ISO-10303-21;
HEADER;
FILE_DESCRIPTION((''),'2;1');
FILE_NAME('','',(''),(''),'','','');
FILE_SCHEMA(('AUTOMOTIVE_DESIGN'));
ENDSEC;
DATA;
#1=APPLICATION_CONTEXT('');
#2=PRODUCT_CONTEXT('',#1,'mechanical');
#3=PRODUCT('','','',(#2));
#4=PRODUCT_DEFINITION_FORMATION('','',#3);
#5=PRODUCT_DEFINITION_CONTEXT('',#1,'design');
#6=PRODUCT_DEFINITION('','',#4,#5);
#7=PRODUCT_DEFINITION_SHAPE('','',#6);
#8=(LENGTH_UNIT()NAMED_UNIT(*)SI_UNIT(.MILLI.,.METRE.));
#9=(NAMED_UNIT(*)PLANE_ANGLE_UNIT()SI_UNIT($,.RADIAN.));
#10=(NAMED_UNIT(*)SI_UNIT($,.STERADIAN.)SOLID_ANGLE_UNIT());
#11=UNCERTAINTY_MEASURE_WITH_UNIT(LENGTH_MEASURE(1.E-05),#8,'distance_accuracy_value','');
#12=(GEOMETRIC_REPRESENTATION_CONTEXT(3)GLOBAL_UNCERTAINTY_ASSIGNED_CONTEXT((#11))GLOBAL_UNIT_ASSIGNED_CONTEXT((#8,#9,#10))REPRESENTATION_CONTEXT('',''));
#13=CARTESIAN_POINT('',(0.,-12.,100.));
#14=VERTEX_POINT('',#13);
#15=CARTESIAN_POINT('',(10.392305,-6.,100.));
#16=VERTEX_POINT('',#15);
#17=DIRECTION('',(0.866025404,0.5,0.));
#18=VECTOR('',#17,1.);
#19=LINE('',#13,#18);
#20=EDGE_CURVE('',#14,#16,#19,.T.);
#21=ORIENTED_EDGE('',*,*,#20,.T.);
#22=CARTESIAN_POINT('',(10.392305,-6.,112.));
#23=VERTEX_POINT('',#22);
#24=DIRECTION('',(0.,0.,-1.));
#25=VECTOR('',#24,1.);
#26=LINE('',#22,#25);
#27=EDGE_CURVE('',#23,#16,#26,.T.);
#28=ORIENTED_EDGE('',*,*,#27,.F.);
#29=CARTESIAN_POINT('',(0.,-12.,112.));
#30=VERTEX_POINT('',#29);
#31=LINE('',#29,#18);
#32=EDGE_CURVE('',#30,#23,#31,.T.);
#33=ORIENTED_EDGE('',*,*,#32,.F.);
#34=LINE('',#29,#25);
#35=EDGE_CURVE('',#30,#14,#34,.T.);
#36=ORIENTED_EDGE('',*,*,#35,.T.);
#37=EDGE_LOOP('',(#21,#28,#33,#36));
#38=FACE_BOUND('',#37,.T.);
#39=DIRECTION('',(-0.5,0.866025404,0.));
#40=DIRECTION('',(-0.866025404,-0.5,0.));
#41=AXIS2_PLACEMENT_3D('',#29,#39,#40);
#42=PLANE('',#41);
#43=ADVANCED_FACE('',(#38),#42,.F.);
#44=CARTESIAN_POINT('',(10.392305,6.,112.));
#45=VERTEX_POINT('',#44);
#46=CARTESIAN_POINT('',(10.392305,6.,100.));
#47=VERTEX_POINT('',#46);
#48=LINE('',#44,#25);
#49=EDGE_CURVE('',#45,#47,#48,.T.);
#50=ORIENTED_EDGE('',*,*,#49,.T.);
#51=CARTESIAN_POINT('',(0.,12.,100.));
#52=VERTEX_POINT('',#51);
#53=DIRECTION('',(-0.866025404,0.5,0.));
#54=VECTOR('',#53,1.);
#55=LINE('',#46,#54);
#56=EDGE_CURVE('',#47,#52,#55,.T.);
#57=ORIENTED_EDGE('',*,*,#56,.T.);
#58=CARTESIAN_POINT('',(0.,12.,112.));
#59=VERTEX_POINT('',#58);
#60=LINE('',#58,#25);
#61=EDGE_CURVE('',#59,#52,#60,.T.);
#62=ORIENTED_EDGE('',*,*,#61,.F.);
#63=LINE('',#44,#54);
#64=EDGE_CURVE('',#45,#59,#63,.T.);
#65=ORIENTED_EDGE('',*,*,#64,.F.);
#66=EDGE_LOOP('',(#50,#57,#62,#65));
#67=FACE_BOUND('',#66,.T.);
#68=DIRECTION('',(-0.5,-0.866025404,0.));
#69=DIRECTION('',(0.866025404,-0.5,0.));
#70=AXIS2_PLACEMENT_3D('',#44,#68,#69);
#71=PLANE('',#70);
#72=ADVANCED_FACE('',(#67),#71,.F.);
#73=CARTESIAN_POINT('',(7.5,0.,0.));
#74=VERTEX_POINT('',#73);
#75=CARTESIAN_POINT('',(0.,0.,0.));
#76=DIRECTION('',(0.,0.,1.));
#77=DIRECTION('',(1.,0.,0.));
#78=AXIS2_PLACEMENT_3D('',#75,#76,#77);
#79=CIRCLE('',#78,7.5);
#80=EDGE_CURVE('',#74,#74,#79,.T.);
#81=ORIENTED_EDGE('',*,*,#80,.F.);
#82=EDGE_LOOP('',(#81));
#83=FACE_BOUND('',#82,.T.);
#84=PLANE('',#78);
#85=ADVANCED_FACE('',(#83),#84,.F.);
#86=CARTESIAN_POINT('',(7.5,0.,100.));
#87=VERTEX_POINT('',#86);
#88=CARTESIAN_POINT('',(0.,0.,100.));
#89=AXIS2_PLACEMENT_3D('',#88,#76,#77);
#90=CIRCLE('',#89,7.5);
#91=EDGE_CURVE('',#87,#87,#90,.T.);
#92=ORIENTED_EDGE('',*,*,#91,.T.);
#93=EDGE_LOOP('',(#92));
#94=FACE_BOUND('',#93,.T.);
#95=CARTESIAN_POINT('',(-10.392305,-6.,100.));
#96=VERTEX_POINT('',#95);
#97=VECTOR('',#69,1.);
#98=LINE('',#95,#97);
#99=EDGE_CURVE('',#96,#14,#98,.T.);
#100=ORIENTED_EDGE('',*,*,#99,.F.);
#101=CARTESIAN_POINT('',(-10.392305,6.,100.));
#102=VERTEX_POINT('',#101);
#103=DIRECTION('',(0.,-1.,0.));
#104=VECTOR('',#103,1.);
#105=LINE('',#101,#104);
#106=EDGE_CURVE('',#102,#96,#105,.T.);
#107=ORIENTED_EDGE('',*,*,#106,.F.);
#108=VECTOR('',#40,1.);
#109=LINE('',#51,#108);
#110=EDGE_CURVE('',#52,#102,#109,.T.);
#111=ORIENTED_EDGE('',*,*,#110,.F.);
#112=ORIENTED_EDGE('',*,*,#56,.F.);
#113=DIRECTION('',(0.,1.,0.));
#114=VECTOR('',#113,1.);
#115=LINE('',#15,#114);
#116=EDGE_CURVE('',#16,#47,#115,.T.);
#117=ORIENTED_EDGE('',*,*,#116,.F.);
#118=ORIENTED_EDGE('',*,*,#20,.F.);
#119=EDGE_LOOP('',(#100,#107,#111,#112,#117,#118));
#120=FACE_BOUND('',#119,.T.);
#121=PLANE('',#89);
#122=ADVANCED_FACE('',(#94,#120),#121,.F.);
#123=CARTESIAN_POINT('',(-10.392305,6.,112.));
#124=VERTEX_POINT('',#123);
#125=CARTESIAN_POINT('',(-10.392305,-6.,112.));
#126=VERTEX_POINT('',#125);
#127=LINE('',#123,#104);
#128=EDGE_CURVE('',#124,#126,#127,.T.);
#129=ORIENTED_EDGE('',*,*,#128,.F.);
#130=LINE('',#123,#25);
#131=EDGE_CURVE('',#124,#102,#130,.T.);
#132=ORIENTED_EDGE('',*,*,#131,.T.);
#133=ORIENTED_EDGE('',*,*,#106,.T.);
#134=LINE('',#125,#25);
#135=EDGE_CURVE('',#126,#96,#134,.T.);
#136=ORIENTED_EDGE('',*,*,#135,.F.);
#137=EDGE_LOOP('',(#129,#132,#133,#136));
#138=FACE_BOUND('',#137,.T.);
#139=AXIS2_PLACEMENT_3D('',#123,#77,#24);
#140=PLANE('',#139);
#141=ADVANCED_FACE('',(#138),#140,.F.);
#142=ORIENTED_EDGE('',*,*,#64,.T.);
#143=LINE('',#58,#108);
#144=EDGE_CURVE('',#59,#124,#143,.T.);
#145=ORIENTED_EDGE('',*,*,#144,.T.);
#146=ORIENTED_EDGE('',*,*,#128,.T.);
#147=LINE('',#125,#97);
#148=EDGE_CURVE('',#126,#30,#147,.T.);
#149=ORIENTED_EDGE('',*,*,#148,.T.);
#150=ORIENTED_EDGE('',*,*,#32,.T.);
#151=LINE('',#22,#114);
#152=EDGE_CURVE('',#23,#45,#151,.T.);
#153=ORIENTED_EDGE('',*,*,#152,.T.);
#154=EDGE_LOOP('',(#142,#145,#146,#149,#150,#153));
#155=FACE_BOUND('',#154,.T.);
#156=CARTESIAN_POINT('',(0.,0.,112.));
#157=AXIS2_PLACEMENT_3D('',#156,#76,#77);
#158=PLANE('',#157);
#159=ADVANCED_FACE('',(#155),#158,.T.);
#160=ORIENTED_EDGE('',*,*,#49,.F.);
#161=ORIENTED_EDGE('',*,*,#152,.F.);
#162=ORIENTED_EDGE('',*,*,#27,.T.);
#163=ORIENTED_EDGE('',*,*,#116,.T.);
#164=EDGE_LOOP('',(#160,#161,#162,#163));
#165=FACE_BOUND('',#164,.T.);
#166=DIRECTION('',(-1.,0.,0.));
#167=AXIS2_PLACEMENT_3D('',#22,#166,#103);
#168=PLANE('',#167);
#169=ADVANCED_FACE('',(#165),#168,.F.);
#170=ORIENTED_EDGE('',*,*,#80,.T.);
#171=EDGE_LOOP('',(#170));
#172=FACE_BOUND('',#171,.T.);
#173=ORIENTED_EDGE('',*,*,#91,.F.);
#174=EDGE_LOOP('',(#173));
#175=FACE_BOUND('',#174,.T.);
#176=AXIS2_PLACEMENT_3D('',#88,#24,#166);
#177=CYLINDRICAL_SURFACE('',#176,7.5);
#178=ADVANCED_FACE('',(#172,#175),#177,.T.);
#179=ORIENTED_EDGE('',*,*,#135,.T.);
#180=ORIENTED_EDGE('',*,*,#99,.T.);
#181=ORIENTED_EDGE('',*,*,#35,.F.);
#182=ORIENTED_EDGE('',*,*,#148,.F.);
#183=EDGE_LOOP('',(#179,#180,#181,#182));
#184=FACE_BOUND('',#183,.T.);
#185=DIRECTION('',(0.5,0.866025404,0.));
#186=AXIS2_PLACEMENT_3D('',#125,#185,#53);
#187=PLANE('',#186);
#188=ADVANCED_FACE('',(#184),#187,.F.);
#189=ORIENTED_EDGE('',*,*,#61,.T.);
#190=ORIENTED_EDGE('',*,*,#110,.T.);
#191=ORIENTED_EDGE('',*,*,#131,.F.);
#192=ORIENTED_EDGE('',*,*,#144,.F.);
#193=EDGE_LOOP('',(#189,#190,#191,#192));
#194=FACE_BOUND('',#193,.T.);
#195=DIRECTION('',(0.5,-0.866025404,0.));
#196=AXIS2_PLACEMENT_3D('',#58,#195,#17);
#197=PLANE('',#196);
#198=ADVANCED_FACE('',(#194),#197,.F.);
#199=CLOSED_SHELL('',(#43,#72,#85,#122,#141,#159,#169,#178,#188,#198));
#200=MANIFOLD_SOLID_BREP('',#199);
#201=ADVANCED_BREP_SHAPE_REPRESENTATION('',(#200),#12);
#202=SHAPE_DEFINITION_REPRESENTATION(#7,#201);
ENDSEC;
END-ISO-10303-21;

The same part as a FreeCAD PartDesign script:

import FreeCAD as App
import Part
import Sketcher

V = App.Vector
Q = App.Units.Quantity

doc = App.newDocument("Part")
body = doc.addObject("PartDesign::Body", "Body")

# Sketch on XY plane
sketch1 = body.newObject("Sketcher::SketchObject", "Sketch")
sketch1.AttachmentSupport = (doc.getObject("XY_Plane"), [""])
sketch1.MapMode = "FlatFace"
sketch1.addGeometry(Part.Circle(V(0, 0, 0), V(0, 0, 1), 8), False)
sketch1.addConstraint(Sketcher.Constraint("Coincident", 0, 3, -1, 1))
sketch1.addConstraint(Sketcher.Constraint("Diameter", 0, 15.0))
pad1 = body.newObject("PartDesign::Pad", "Pad")
pad1.Profile = sketch1
pad1.Length = 100

# Sketch on XY plane
sketch2 = body.newObject("Sketcher::SketchObject", "Sketch001")
sketch2.AttachmentSupport = (doc.getObject("XY_Plane"), [""])
sketch2.MapMode = "FlatFace"
sketch2.AttachmentOffset = App.Placement(V(0, 0, 100), App.Rotation())
sketch2.addGeometry(Part.LineSegment(V(0, -12, 0), V(10, -6, 0)), False)
sketch2.addGeometry(Part.LineSegment(V(10, -6, 0), V(10, 6, 0)), False)
sketch2.addGeometry(Part.LineSegment(V(10, 6, 0), V(0, 12, 0)), False)
sketch2.addGeometry(Part.LineSegment(V(0, 12, 0), V(-10, 6, 0)), False)
sketch2.addGeometry(Part.LineSegment(V(-10, 6, 0), V(-10, -6, 0)), False)
sketch2.addGeometry(Part.LineSegment(V(-10, -6, 0), V(0, -12, 0)), False)
sketch2.addConstraint(Sketcher.Constraint("Coincident", 0, 2, 1, 1))
sketch2.addConstraint(Sketcher.Constraint("Coincident", 1, 2, 2, 1))
sketch2.addConstraint(Sketcher.Constraint("Coincident", 2, 2, 3, 1))
sketch2.addConstraint(Sketcher.Constraint("Coincident", 3, 2, 4, 1))
sketch2.addConstraint(Sketcher.Constraint("Coincident", 4, 2, 5, 1))
sketch2.addConstraint(Sketcher.Constraint("Coincident", 5, 2, 0, 1))
sketch2.addConstraint(Sketcher.Constraint("Vertical", 1))
sketch2.addConstraint(Sketcher.Constraint("Vertical", 4))
sketch2.addConstraint(Sketcher.Constraint("Symmetric", 0, 2, 3, 2, -1, 1))
sketch2.addConstraint(Sketcher.Constraint("Symmetric", 2, 2, 5, 2, -1, 1))
sketch2.addConstraint(Sketcher.Constraint("PointOnObject", 2, 2, -2))
sketch2.addConstraint(Sketcher.Constraint("Parallel", 2, 5))
sketch2.addConstraint(Sketcher.Constraint("Horizontal", 1, 2, 3, 2))
sketch2.addConstraint(Sketcher.Constraint("DistanceY", 1, 1, 1, 2, 12.0))
sketch2.addConstraint(Sketcher.Constraint("Angle", 0, Q("30 deg")))
sketch2.addConstraint(Sketcher.Constraint("Distance", 0, 12.0))
pad2 = body.newObject("PartDesign::Pad", "Pad001")
pad2.Profile = sketch2
pad2.Length = 12

doc.recompute()
